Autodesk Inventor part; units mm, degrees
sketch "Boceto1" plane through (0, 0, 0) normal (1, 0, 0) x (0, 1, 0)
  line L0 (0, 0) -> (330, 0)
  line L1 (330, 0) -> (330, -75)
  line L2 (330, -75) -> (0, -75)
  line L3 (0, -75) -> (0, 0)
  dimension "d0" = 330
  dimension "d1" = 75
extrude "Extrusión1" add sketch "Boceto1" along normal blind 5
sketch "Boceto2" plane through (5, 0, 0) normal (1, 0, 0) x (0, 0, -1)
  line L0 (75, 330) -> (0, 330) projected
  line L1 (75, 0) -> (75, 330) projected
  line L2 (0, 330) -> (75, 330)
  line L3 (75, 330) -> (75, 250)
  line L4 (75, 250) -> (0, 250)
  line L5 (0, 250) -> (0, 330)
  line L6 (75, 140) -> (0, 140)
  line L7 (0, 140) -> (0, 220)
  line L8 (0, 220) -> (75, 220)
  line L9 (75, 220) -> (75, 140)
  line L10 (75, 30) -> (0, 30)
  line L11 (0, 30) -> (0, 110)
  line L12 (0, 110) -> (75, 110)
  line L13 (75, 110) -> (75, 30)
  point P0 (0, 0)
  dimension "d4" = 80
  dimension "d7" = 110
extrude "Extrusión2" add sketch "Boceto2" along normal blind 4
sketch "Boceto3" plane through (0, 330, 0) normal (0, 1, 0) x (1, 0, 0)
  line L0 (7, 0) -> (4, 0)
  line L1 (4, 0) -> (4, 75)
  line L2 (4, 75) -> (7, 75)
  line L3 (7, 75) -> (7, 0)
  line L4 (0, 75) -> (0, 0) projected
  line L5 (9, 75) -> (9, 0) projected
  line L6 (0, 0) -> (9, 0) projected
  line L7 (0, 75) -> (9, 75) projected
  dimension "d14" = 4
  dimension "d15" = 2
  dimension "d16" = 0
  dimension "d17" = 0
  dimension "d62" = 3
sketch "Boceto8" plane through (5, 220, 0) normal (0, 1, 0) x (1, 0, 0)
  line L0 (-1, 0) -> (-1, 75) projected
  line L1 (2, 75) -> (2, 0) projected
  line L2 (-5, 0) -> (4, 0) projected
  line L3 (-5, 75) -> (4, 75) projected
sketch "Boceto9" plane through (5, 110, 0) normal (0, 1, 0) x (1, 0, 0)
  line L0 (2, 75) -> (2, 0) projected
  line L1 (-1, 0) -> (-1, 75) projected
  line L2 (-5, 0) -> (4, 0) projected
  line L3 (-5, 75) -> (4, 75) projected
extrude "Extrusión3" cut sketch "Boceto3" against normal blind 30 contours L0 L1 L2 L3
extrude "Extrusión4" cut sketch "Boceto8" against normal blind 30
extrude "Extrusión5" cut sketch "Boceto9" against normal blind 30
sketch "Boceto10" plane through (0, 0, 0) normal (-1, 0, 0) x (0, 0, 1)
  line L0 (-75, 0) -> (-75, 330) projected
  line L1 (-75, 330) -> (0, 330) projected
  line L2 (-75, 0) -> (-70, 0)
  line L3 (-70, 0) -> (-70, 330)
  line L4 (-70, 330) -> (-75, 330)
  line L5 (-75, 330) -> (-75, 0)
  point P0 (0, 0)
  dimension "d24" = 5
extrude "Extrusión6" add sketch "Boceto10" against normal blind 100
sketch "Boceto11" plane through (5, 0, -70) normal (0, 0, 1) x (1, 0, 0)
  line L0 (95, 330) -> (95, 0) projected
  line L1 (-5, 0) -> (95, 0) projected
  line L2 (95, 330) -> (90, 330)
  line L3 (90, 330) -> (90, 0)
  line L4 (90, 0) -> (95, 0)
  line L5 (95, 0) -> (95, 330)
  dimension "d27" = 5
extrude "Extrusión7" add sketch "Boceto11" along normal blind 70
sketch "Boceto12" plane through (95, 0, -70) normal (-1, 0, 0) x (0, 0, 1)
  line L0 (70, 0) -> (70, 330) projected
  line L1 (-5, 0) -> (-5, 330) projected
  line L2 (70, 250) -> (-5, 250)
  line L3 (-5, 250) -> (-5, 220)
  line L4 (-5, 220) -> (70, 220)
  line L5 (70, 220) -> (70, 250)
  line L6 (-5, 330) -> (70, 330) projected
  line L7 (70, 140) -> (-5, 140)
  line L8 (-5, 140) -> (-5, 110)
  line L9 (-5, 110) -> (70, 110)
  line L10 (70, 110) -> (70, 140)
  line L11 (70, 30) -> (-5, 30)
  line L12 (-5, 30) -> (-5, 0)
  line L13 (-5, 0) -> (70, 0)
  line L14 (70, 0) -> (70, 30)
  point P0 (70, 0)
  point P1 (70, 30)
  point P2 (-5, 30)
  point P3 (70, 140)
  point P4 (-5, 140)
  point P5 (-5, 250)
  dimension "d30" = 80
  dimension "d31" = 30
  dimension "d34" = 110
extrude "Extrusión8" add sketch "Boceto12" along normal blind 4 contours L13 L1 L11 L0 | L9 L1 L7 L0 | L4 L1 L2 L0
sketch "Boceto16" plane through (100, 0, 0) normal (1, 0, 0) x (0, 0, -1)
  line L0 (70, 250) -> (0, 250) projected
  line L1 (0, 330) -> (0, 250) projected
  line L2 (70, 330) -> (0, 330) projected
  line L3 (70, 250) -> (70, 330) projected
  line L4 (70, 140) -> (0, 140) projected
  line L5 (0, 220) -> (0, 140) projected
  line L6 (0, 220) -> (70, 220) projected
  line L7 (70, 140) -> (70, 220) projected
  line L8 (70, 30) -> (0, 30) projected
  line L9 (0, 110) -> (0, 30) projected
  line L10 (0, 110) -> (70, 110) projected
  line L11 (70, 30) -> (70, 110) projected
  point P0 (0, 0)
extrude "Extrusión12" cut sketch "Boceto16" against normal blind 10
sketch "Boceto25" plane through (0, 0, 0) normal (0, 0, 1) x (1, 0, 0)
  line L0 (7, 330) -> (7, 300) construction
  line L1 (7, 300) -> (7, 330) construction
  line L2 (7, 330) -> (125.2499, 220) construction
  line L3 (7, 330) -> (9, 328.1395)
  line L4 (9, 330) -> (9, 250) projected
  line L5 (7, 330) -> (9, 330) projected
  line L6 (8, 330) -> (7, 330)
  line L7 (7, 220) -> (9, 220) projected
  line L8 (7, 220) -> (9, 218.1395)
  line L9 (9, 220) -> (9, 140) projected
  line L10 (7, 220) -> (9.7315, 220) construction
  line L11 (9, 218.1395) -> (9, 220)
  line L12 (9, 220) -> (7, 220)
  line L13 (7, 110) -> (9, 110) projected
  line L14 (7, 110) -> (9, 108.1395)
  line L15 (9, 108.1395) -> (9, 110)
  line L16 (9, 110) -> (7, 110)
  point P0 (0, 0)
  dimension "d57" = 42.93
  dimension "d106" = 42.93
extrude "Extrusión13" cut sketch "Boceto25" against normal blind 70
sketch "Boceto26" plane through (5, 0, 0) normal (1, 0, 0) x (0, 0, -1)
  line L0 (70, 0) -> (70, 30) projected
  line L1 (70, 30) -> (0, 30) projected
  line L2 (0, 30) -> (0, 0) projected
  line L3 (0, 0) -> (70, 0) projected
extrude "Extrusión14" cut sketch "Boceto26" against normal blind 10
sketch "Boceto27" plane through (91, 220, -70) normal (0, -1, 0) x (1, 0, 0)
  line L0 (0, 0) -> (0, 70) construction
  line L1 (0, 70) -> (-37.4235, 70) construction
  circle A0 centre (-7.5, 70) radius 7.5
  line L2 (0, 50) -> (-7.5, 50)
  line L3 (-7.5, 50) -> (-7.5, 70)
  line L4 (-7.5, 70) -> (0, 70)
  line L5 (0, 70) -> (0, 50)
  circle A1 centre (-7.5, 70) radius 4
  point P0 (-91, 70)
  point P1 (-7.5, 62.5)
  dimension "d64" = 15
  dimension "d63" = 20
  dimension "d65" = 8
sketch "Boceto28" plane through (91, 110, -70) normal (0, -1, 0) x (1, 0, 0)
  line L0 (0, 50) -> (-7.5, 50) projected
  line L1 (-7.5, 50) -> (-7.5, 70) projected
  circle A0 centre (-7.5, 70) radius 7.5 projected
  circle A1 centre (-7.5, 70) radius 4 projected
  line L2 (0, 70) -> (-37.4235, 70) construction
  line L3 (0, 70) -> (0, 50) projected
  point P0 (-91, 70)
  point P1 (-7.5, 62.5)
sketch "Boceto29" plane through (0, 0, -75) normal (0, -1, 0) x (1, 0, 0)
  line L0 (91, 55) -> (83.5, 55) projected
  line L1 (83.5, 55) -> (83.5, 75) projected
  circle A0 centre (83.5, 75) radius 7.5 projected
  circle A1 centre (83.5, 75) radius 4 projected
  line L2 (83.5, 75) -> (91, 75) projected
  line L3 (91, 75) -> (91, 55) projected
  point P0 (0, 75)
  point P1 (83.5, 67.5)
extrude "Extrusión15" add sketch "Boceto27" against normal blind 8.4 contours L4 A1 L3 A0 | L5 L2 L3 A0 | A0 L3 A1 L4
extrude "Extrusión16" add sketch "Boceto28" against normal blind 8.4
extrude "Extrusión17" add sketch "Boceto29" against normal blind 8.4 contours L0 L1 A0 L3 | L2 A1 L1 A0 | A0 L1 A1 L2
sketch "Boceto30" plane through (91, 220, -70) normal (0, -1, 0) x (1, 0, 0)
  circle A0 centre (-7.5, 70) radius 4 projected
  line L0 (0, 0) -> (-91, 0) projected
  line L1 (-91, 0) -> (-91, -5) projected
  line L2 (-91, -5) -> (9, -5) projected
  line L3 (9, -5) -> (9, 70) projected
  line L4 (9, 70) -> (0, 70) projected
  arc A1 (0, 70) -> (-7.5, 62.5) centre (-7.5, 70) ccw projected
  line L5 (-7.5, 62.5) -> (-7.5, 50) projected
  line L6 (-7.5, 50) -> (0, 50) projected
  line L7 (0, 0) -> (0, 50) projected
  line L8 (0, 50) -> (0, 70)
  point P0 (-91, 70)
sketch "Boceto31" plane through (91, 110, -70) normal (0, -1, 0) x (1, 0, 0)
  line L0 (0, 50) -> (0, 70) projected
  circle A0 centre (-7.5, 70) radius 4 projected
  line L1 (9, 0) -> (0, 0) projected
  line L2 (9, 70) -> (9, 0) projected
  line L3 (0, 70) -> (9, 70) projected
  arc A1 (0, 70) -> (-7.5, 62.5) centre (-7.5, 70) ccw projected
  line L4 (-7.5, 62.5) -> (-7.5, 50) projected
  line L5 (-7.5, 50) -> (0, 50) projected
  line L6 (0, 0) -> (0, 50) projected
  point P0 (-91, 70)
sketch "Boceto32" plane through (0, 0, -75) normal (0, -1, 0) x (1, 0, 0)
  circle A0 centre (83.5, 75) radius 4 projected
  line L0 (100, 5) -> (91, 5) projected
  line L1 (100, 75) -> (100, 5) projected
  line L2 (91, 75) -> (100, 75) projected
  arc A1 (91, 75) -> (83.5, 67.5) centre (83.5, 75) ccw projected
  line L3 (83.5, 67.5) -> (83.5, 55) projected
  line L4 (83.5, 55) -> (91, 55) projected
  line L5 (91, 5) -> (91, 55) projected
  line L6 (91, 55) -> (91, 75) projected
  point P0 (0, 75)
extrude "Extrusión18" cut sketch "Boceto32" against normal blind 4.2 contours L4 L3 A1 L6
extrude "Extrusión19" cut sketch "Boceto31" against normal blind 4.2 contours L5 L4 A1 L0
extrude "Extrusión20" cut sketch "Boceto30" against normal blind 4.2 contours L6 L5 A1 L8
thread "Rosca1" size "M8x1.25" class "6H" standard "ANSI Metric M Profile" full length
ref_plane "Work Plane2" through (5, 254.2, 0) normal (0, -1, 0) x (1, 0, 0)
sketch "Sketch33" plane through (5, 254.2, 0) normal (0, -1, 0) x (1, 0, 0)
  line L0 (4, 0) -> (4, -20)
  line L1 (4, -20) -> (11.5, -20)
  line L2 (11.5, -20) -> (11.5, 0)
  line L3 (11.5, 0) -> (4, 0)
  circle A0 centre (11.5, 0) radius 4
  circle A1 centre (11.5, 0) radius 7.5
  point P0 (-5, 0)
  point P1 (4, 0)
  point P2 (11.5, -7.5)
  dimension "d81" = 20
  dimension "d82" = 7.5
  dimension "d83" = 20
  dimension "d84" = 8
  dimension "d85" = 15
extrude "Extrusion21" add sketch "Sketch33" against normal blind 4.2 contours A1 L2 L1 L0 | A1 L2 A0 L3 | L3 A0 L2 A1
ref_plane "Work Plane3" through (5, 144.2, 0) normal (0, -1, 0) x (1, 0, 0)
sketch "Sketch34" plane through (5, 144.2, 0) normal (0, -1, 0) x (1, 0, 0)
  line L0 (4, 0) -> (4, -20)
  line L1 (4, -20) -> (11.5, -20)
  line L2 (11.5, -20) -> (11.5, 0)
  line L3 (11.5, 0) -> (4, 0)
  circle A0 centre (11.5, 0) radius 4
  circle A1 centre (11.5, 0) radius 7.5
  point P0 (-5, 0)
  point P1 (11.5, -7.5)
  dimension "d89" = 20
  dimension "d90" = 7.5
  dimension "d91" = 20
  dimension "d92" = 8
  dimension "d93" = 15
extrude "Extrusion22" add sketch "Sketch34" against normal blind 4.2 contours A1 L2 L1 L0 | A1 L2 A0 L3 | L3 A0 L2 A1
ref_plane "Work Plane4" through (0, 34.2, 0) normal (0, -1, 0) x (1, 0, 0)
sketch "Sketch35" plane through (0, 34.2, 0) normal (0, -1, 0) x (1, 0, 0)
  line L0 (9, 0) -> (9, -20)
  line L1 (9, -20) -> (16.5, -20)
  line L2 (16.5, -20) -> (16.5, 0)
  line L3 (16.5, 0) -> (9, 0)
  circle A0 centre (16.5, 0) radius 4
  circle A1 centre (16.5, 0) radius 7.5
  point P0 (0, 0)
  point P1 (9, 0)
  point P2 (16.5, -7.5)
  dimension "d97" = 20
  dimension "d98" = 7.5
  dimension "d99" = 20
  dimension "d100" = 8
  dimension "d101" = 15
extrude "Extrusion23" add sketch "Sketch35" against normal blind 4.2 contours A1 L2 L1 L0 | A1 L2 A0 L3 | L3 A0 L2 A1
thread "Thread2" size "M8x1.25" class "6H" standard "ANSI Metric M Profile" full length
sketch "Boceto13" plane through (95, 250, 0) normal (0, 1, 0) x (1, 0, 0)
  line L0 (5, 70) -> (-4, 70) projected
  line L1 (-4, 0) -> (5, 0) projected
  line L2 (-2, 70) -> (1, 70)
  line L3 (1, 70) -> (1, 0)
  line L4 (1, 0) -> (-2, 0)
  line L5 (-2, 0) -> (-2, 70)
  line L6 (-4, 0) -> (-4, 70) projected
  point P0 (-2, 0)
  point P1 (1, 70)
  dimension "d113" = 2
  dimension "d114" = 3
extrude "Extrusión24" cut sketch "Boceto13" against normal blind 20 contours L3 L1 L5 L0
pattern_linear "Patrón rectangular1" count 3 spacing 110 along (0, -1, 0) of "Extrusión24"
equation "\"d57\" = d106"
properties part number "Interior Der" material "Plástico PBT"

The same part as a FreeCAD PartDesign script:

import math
import FreeCAD as App
import Part
import Sketcher
Q = App.Units.Quantity


def add_polygon(sketch, points):
    """Adds a closed chain of lines whose ends are joined by coincident constraints."""
    first, n = sketch.GeometryCount, len(points)
    for a, b in zip(points, points[1:] + points[:1]):
        sketch.addGeometry(Part.LineSegment(App.Vector(*a, 0), App.Vector(*b, 0)), False)
    for i in range(n):
        sketch.addConstraint(Sketcher.Constraint("Coincident", first + i, 2, first + (i + 1) % n, 1))

doc = App.newDocument("Part")
params = doc.addObject("Spreadsheet::Sheet", "Params")
for row, (alias, value) in enumerate([
    ("sketch1_width", "330 mm"),
    ("sketch1_height", "75 mm"),
    ("pad1_length", "5 mm"),
    ("sketch2_width", "80 mm"),
    ("sketch2_height", "75 mm"),
    ("pad2_length", "4 mm"),
    ("sketch3_width", "3 mm"),
    ("sketch3_height", "75 mm"),
    ("pocket1_length", "30 mm"),
    ("sketch4_width", "3 mm"),
    ("sketch4_height", "75 mm"),
    ("pocket2_length", "30 mm"),
    ("sketch5_width", "3 mm"),
    ("sketch5_height", "75 mm"),
    ("pocket3_length", "30 mm"),
    ("sketch6_height", "5 mm"),
    ("sketch6_width", "330 mm"),
    ("pad3_length", "100 mm"),
    ("sketch7_width", "5 mm"),
    ("sketch7_height", "330 mm"),
    ("pad4_length", "70 mm"),
    ("sketch8_width", "30 mm"),
    ("sketch8_height", "75 mm"),
    ("pad5_length", "4 mm"),
    ("sketch9_width", "80 mm"),
    ("sketch9_height", "70 mm"),
    ("pocket4_length", "10 mm"),
    ("sketch10_width", "2 mm"),
    ("pocket5_length", "70 mm"),
    ("sketch11_width", "30 mm"),
    ("sketch11_height", "70 mm"),
    ("pocket6_length", "10 mm"),
    ("sketch12_diameter", "8 mm"),
    ("sketch12_radius", "7.5 mm"),
    ("sketch12_height", "20 mm"),
    ("pad6_length", "8.4 mm"),
    ("sketch13_diameter", "8 mm"),
    ("sketch13_radius", "7.5 mm"),
    ("sketch13_height", "20 mm"),
    ("pad7_length", "8.4 mm"),
    ("sketch14_diameter", "8 mm"),
    ("sketch14_radius", "7.5 mm"),
    ("sketch14_height", "20 mm"),
    ("pad8_length", "8.4 mm"),
    ("sketch15_diameter", "8 mm"),
    ("sketch15_radius", "7.5 mm"),
    ("sketch15_height", "20 mm"),
    ("pocket7_length", "4.2 mm"),
    ("sketch16_diameter", "8 mm"),
    ("sketch16_radius", "7.5 mm"),
    ("sketch16_height", "20 mm"),
    ("pocket8_length", "4.2 mm"),
    ("sketch17_diameter", "8 mm"),
    ("sketch17_radius", "7.5 mm"),
    ("sketch17_height", "20 mm"),
    ("pocket9_length", "4.2 mm"),
    ("sketch18_diameter", "8 mm"),
    ("sketch18_radius", "7.5 mm"),
    ("sketch18_height", "20 mm"),
    ("pad9_length", "4.2 mm"),
    ("sketch19_diameter", "8 mm"),
    ("sketch19_radius", "7.5 mm"),
    ("sketch19_height", "20 mm"),
    ("pad10_length", "4.2 mm"),
    ("sketch20_diameter", "8 mm"),
    ("sketch20_radius", "7.5 mm"),
    ("sketch20_height", "20 mm"),
    ("pad11_length", "4.2 mm"),
    ("sketch21_width", "3 mm"),
    ("sketch21_height", "70 mm"),
    ("pocket10_length", "20 mm"),
    ("linearpattern_pitch", "110 mm"),
], start=1):
    params.set(f"A{row}", alias)
    params.set(f"B{row}", "=" + value)
    params.setAlias(f"B{row}", alias)

body = doc.addObject("PartDesign::Body", "Body")

# Sketch on YZ plane
sketch1 = body.newObject("Sketcher::SketchObject", "Sketch")
sketch1.AttachmentSupport = (doc.getObject("YZ_Plane"), [""])
sketch1.MapMode = "FlatFace"
add_polygon(sketch1, [(330, 0), (0, 0), (0, -75), (330, -75)])  # lines 0-3
sketch1.addConstraint([
    Sketcher.Constraint("Horizontal", 0),
    Sketcher.Constraint("Vertical", 1),
    Sketcher.Constraint("Horizontal", 2),
    Sketcher.Constraint("Vertical", 3),
    Sketcher.Constraint("Coincident", 0, 2, -1, 1),
    Sketcher.Constraint("DistanceX", 0, 2, 0, 1, 330.0),
    Sketcher.Constraint("DistanceY", 1, 2, 1, 1, 75.0),
])
sketch1.setExpression("Constraints[9]", "Params.sketch1_width")
sketch1.setExpression("Constraints[10]", "Params.sketch1_height")
pad1 = body.newObject("PartDesign::Pad", "Pad")
pad1.Profile = sketch1
pad1.setExpression("Length", "Params.pad1_length")

# Sketch on YZ plane
sketch2 = body.newObject("Sketcher::SketchObject", "Sketch001")
sketch2.AttachmentSupport = (doc.getObject("YZ_Plane"), [""])
sketch2.MapMode = "FlatFace"
sketch2.AttachmentOffset = App.Placement(App.Vector(0, 0, 5), App.Rotation())
add_polygon(sketch2, [(250, -75), (330, -75), (330, 0), (250, 0)])  # lines 0-3
add_polygon(sketch2, [(30, -75), (110, -75), (110, 0), (30, 0)])  # lines 4-7
add_polygon(sketch2, [(140, -75), (220, -75), (220, 0), (140, 0)])  # lines 8-11
sketch2.addConstraint([
    Sketcher.Constraint("Horizontal", 0),
    Sketcher.Constraint("Vertical", 1),
    Sketcher.Constraint("Horizontal", 2),
    Sketcher.Constraint("Vertical", 3),
    Sketcher.Constraint("Horizontal", 4),
    Sketcher.Constraint("Vertical", 5),
    Sketcher.Constraint("Horizontal", 6),
    Sketcher.Constraint("Vertical", 7),
    Sketcher.Constraint("Horizontal", 8),
    Sketcher.Constraint("Vertical", 9),
    Sketcher.Constraint("Horizontal", 10),
    Sketcher.Constraint("Vertical", 11),
    Sketcher.Constraint("PointOnObject", 1, 2, -1),
    Sketcher.Constraint("PointOnObject", 5, 2, -1),
    Sketcher.Constraint("PointOnObject", 9, 2, -1),
    Sketcher.Constraint("Horizontal", 3, 2, 4, 2),
    Sketcher.Constraint("Horizontal", 7, 2, 8, 2),
    Sketcher.Constraint("Equal", 2, 4),
    Sketcher.Constraint("Equal", 6, 8),
    Sketcher.Constraint("DistanceX", 0, 1, 0, 2, 80.0),
    Sketcher.Constraint("DistanceX", -1, 1, 4, 2, 110.0),
    Sketcher.Constraint("DistanceX", 8, 2, 0, 2, 110.0),
    Sketcher.Constraint("DistanceX", 4, 2, 8, 2, 110.0),
    Sketcher.Constraint("DistanceY", 1, 1, 1, 2, 75.0),
])
sketch2.setExpression("Constraints[31]", "Params.sketch2_width")
sketch2.setExpression("Constraints[35]", "Params.sketch2_height")
pad2 = body.newObject("PartDesign::Pad", "Pad001")
pad2.Profile = sketch2
pad2.setExpression("Length", "Params.pad2_length")

# Sketch on XZ plane
sketch3 = body.newObject("Sketcher::SketchObject", "Sketch002")
sketch3.AttachmentSupport = (doc.getObject("XZ_Plane"), [""])
sketch3.MapMode = "FlatFace"
sketch3.AttachmentOffset = App.Placement(App.Vector(0, 0, -330), App.Rotation())
add_polygon(sketch3, [(4, 0), (7, 0), (7, -75), (4, -75)])  # lines 0-3
sketch3.addConstraint([
    Sketcher.Constraint("Horizontal", 0),
    Sketcher.Constraint("Vertical", 1),
    Sketcher.Constraint("Horizontal", 2),
    Sketcher.Constraint("Vertical", 3),
    Sketcher.Constraint("PointOnObject", 0, 2, -1),
    Sketcher.Constraint("DistanceX", 0, 1, 0, 2, 3.0),
    Sketcher.Constraint("DistanceX", -1, 1, 2, 2, 4.0),
    Sketcher.Constraint("DistanceY", 1, 2, 1, 1, 75.0),
])
sketch3.setExpression("Constraints[9]", "Params.sketch3_width")
sketch3.setExpression("Constraints[11]", "Params.sketch3_height")
pocket1 = body.newObject("PartDesign::Pocket", "Pocket")
pocket1.Profile = sketch3
pocket1.setExpression("Length", "Params.pocket1_length")
pocket1.Reversed = True

# Sketch on XZ plane
sketch4 = body.newObject("Sketcher::SketchObject", "Sketch003")
sketch4.AttachmentSupport = (doc.getObject("XZ_Plane"), [""])
sketch4.MapMode = "FlatFace"
sketch4.AttachmentOffset = App.Placement(App.Vector(0, 0, -220), App.Rotation())
add_polygon(sketch4, [(4, -75), (4, 0), (7, 0), (7, -75)])  # lines 0-3
sketch4.addConstraint([
    Sketcher.Constraint("Vertical", 0),
    Sketcher.Constraint("Horizontal", 1),
    Sketcher.Constraint("Vertical", 2),
    Sketcher.Constraint("Horizontal", 3),
    Sketcher.Constraint("PointOnObject", 0, 2, -1),
    Sketcher.Constraint("DistanceX", 1, 1, 1, 2, 3.0),
    Sketcher.Constraint("DistanceY", 0, 1, 0, 2, 75.0),
    Sketcher.Constraint("DistanceX", -1, 1, 0, 2, 4.0),
])
sketch4.setExpression("Constraints[9]", "Params.sketch4_width")
sketch4.setExpression("Constraints[10]", "Params.sketch4_height")
pocket2 = body.newObject("PartDesign::Pocket", "Pocket001")
pocket2.Profile = sketch4
pocket2.setExpression("Length", "Params.pocket2_length")
pocket2.Reversed = True

# Sketch on XZ plane
sketch5 = body.newObject("Sketcher::SketchObject", "Sketch004")
sketch5.AttachmentSupport = (doc.getObject("XZ_Plane"), [""])
sketch5.MapMode = "FlatFace"
sketch5.AttachmentOffset = App.Placement(App.Vector(0, 0, -110), App.Rotation())
add_polygon(sketch5, [(7, 0), (7, -75), (4, -75), (4, 0)])  # lines 0-3
sketch5.addConstraint([
    Sketcher.Constraint("Vertical", 0),
    Sketcher.Constraint("Horizontal", 1),
    Sketcher.Constraint("Vertical", 2),
    Sketcher.Constraint("Horizontal", 3),
    Sketcher.Constraint("PointOnObject", 2, 2, -1),
    Sketcher.Constraint("DistanceX", 1, 2, 1, 1, 3.0),
    Sketcher.Constraint("DistanceY", 0, 2, 0, 1, 75.0),
    Sketcher.Constraint("DistanceX", -1, 1, 0, 2, 7.0),
])
sketch5.setExpression("Constraints[9]", "Params.sketch5_width")
sketch5.setExpression("Constraints[10]", "Params.sketch5_height")
pocket3 = body.newObject("PartDesign::Pocket", "Pocket002")
pocket3.Profile = sketch5
pocket3.setExpression("Length", "Params.pocket3_length")
pocket3.Reversed = True

# Sketch on YZ plane
sketch6 = body.newObject("Sketcher::SketchObject", "Sketch005")
sketch6.AttachmentSupport = (doc.getObject("YZ_Plane"), [""])
sketch6.MapMode = "FlatFace"
add_polygon(sketch6, [(330, -75), (0, -75), (0, -70), (330, -70)])  # lines 0-3
sketch6.addConstraint([
    Sketcher.Constraint("Horizontal", 0),
    Sketcher.Constraint("Vertical", 1),
    Sketcher.Constraint("Horizontal", 2),
    Sketcher.Constraint("Vertical", 3),
    Sketcher.Constraint("PointOnObject", 0, 2, -2),
    Sketcher.Constraint("DistanceY", 1, 1, 1, 2, 5.0),
    Sketcher.Constraint("DistanceX", 0, 2, 0, 1, 330.0),
    Sketcher.Constraint("DistanceY", 0, 2, -1, 1, 75.0),
])
sketch6.setExpression("Constraints[9]", "Params.sketch6_height")
sketch6.setExpression("Constraints[10]", "Params.sketch6_width")
pad3 = body.newObject("PartDesign::Pad", "Pad002")
pad3.Profile = sketch6
pad3.setExpression("Length", "Params.pad3_length")

# Sketch on XY plane
sketch7 = body.newObject("Sketcher::SketchObject", "Sketch006")
sketch7.AttachmentSupport = (doc.getObject("XY_Plane"), [""])
sketch7.MapMode = "FlatFace"
sketch7.AttachmentOffset = App.Placement(App.Vector(0, 0, -70), App.Rotation())
add_polygon(sketch7, [(100, 0), (100, 330), (95, 330), (95, 0)])  # lines 0-3
sketch7.addConstraint([
    Sketcher.Constraint("Vertical", 0),
    Sketcher.Constraint("Horizontal", 1),
    Sketcher.Constraint("Vertical", 2),
    Sketcher.Constraint("Horizontal", 3),
    Sketcher.Constraint("PointOnObject", 2, 2, -1),
    Sketcher.Constraint("DistanceX", 1, 2, 1, 1, 5.0),
    Sketcher.Constraint("DistanceY", 0, 1, 0, 2, 330.0),
    Sketcher.Constraint("DistanceX", -1, 1, 0, 2, 100.0),
])
sketch7.setExpression("Constraints[9]", "Params.sketch7_width")
sketch7.setExpression("Constraints[10]", "Params.sketch7_height")
pad4 = body.newObject("PartDesign::Pad", "Pad003")
pad4.Profile = sketch7
pad4.setExpression("Length", "Params.pad4_length")

# Sketch on YZ plane
sketch8 = body.newObject("Sketcher::SketchObject", "Sketch007")
sketch8.AttachmentSupport = (doc.getObject("YZ_Plane"), [""])
sketch8.MapMode = "FlatFace"
sketch8.AttachmentOffset = App.Placement(App.Vector(0, 0, 95), App.Rotation())
add_polygon(sketch8, [(0, -75), (0, 0), (30, 0), (30, -75)])  # lines 0-3
add_polygon(sketch8, [(110, -75), (110, 0), (140, 0), (140, -75)])  # lines 4-7
add_polygon(sketch8, [(220, -75), (220, 0), (250, 0), (250, -75)])  # lines 8-11
sketch8.addConstraint([
    Sketcher.Constraint("Vertical", 0),
    Sketcher.Constraint("Horizontal", 1),
    Sketcher.Constraint("Vertical", 2),
    Sketcher.Constraint("Horizontal", 3),
    Sketcher.Constraint("Vertical", 4),
    Sketcher.Constraint("Horizontal", 5),
    Sketcher.Constraint("Vertical", 6),
    Sketcher.Constraint("Horizontal", 7),
    Sketcher.Constraint("Vertical", 8),
    Sketcher.Constraint("Horizontal", 9),
    Sketcher.Constraint("Vertical", 10),
    Sketcher.Constraint("Horizontal", 11),
    Sketcher.Constraint("Coincident", 0, 2, -1, 1),
    Sketcher.Constraint("PointOnObject", 4, 2, -1),
    Sketcher.Constraint("PointOnObject", 8, 2, -1),
    Sketcher.Constraint("Horizontal", 3, 2, 6, 2),
    Sketcher.Constraint("Horizontal", 7, 2, 10, 2),
    Sketcher.Constraint("Equal", 3, 5),
    Sketcher.Constraint("Equal", 7, 9),
    Sketcher.Constraint("DistanceX", 1, 1, 1, 2, 30.0),
    Sketcher.Constraint("DistanceX", -1, 1, 4, 2, 110.0),
    Sketcher.Constraint("DistanceX", 5, 2, 8, 2, 80.0),
    Sketcher.Constraint("DistanceY", 0, 1, 0, 2, 75.0),
])
sketch8.setExpression("Constraints[31]", "Params.sketch8_width")
sketch8.setExpression("Constraints[34]", "Params.sketch8_height")
pad5 = body.newObject("PartDesign::Pad", "Pad004")
pad5.Profile = sketch8
pad5.setExpression("Length", "Params.pad5_length")
pad5.Reversed = True

# Sketch on YZ plane
sketch9 = body.newObject("Sketcher::SketchObject", "Sketch008")
sketch9.AttachmentSupport = (doc.getObject("YZ_Plane"), [""])
sketch9.MapMode = "FlatFace"
sketch9.AttachmentOffset = App.Placement(App.Vector(0, 0, 100), App.Rotation())
add_polygon(sketch9, [(250, 0), (250, -70), (330, -70), (330, 0)])  # lines 0-3
add_polygon(sketch9, [(140, 0), (140, -70), (220, -70), (220, 0)])  # lines 4-7
add_polygon(sketch9, [(30, 0), (30, -70), (110, -70), (110, 0)])  # lines 8-11
sketch9.addConstraint([
    Sketcher.Constraint("Vertical", 0),
    Sketcher.Constraint("Horizontal", 1),
    Sketcher.Constraint("Vertical", 2),
    Sketcher.Constraint("Horizontal", 3),
    Sketcher.Constraint("Vertical", 4),
    Sketcher.Constraint("Horizontal", 5),
    Sketcher.Constraint("Vertical", 6),
    Sketcher.Constraint("Horizontal", 7),
    Sketcher.Constraint("Vertical", 8),
    Sketcher.Constraint("Horizontal", 9),
    Sketcher.Constraint("Vertical", 10),
    Sketcher.Constraint("Horizontal", 11),
    Sketcher.Constraint("PointOnObject", 2, 2, -1),
    Sketcher.Constraint("PointOnObject", 6, 2, -1),
    Sketcher.Constraint("PointOnObject", 10, 2, -1),
    Sketcher.Constraint("Horizontal", 1, 2, 4, 2),
    Sketcher.Constraint("Horizontal", 5, 2, 8, 2),
    Sketcher.Constraint("Equal", 3, 5),
    Sketcher.Constraint("Equal", 7, 9),
    Sketcher.Constraint("DistanceX", 1, 1, 1, 2, 80.0),
    Sketcher.Constraint("DistanceY", 0, 2, 0, 1, 70.0),
    Sketcher.Constraint("DistanceX", -1, 1, 0, 2, 250.0),
    Sketcher.Constraint("DistanceX", -1, 1, 4, 2, 140.0),
    Sketcher.Constraint("DistanceX", -1, 1, 8, 2, 30.0),
])
sketch9.setExpression("Constraints[31]", "Params.sketch9_width")
sketch9.setExpression("Constraints[32]", "Params.sketch9_height")
pocket4 = body.newObject("PartDesign::Pocket", "Pocket003")
pocket4.Profile = sketch9
pocket4.setExpression("Length", "Params.pocket4_length")

# Sketch on XY plane
sketch10 = body.newObject("Sketcher::SketchObject", "Sketch009")
sketch10.AttachmentSupport = (doc.getObject("XY_Plane"), [""])
sketch10.MapMode = "FlatFace"
add_polygon(sketch10, [(9, 330), (7, 330), (9, 328.1)])  # lines 0-2
add_polygon(sketch10, [(9, 220), (7, 220), (9, 218.1)])  # lines 3-5
add_polygon(sketch10, [(9, 110), (7, 110), (9, 108.1)])  # lines 6-8
sketch10.addConstraint([
    Sketcher.Constraint("Horizontal", 0),
    Sketcher.Constraint("Vertical", 2),
    Sketcher.Constraint("Horizontal", 3),
    Sketcher.Constraint("Vertical", 5),
    Sketcher.Constraint("Horizontal", 6),
    Sketcher.Constraint("Vertical", 8),
    Sketcher.Constraint("Parallel", 1, 4),
    Sketcher.Constraint("Parallel", 4, 7),
    Sketcher.Constraint("Vertical", 0, 2, 3, 2),
    Sketcher.Constraint("Vertical", 2, 2, 4, 2),
    Sketcher.Constraint("Vertical", 3, 2, 6, 2),
    Sketcher.Constraint("Vertical", 5, 2, 7, 2),
    Sketcher.Constraint("Angle", 1, Q("-42.9305 deg")),
    Sketcher.Constraint("DistanceX", 0, 2, 0, 1, 2.0),
    Sketcher.Constraint("DistanceX", -1, 1, 0, 2, 7.0),
    Sketcher.Constraint("DistanceY", -1, 1, 0, 2, 330.0),
    Sketcher.Constraint("DistanceY", -1, 1, 3, 2, 220.0),
    Sketcher.Constraint("DistanceY", -1, 1, 6, 2, 110.0),
])
sketch10.setExpression("Constraints[22]", "Params.sketch10_width")
pocket5 = body.newObject("PartDesign::Pocket", "Pocket004")
pocket5.Profile = sketch10
pocket5.setExpression("Length", "Params.pocket5_length")

# Sketch on YZ plane
sketch11 = body.newObject("Sketcher::SketchObject", "Sketch010")
sketch11.AttachmentSupport = (doc.getObject("YZ_Plane"), [""])
sketch11.MapMode = "FlatFace"
sketch11.AttachmentOffset = App.Placement(App.Vector(0, 0, 5), App.Rotation())
add_polygon(sketch11, [(0, 0), (0, -70), (30, -70), (30, 0)])  # lines 0-3
sketch11.addConstraint([
    Sketcher.Constraint("Vertical", 0),
    Sketcher.Constraint("Horizontal", 1),
    Sketcher.Constraint("Vertical", 2),
    Sketcher.Constraint("Horizontal", 3),
    Sketcher.Constraint("Coincident", 3, 2, -1, 1),
    Sketcher.Constraint("DistanceX", 1, 1, 1, 2, 30.0),
    Sketcher.Constraint("DistanceY", 0, 2, 0, 1, 70.0),
])
sketch11.setExpression("Constraints[9]", "Params.sketch11_width")
sketch11.setExpression("Constraints[10]", "Params.sketch11_height")
pocket6 = body.newObject("PartDesign::Pocket", "Pocket005")
pocket6.Profile = sketch11
pocket6.setExpression("Length", "Params.pocket6_length")

# Sketch on XZ plane
sketch12 = body.newObject("Sketcher::SketchObject", "Sketch011")
sketch12.AttachmentSupport = (doc.getObject("XZ_Plane"), [""])
sketch12.MapMode = "FlatFace"
sketch12.AttachmentOffset = App.Placement(App.Vector(0, 0, -220), App.Rotation())
sketch12.addGeometry([
    Part.ArcOfCircle(Part.Circle(App.Vector(83.5, 0, 0), App.Vector(0, 0, 1), 7.5), math.radians(0), math.radians(270)),  # 0
    Part.LineSegment(App.Vector(83.5, -7.5, 0), App.Vector(83.5, -20, 0)),  # 1
    Part.LineSegment(App.Vector(83.5, -20, 0), App.Vector(91, -20, 0)),  # 2
    Part.LineSegment(App.Vector(91, -20, 0), App.Vector(91, 0, 0)),  # 3
    Part.Circle(App.Vector(83.5, 0, 0), App.Vector(0, 0, 1), 4),  # 4
], False)
sketch12.addConstraint([
    Sketcher.Constraint("Coincident", 0, 2, 1, 1),
    Sketcher.Constraint("Coincident", 1, 2, 2, 1),
    Sketcher.Constraint("Coincident", 2, 2, 3, 1),
    Sketcher.Constraint("Tangent", 3, 2, 0, 1),
    Sketcher.Constraint("Vertical", 1),
    Sketcher.Constraint("Horizontal", 2),
    Sketcher.Constraint("Vertical", 3),
    Sketcher.Constraint("Coincident", 4, 3, 0, 3),
    Sketcher.Constraint("PointOnObject", 0, 3, -1),
    Sketcher.Constraint("Vertical", 4, 3, 0, 2),
    Sketcher.Constraint("Diameter", 4, 8.0),
    Sketcher.Constraint("Radius", 0, 7.5),
    Sketcher.Constraint("DistanceY", 3, 1, 3, 2, 20.0),
    Sketcher.Constraint("DistanceX", -1, 1, 2, 2, 91.0),
])
sketch12.setExpression("Constraints[10]", "Params.sketch12_diameter")
sketch12.setExpression("Constraints[11]", "Params.sketch12_radius")
sketch12.setExpression("Constraints[12]", "Params.sketch12_height")
pad6 = body.newObject("PartDesign::Pad", "Pad005")
pad6.Profile = sketch12
pad6.setExpression("Length", "Params.pad6_length")
pad6.Reversed = True

# Sketch on XZ plane
sketch13 = body.newObject("Sketcher::SketchObject", "Sketch012")
sketch13.AttachmentSupport = (doc.getObject("XZ_Plane"), [""])
sketch13.MapMode = "FlatFace"
sketch13.AttachmentOffset = App.Placement(App.Vector(0, 0, -110), App.Rotation())
sketch13.addGeometry([
    Part.LineSegment(App.Vector(83.5, -20, 0), App.Vector(91, -20, 0)),  # 0
    Part.LineSegment(App.Vector(91, -20, 0), App.Vector(91, 0, 0)),  # 1
    Part.ArcOfCircle(Part.Circle(App.Vector(83.5, 0, 0), App.Vector(0, 0, 1), 7.5), math.radians(0), math.radians(270)),  # 2
    Part.LineSegment(App.Vector(83.5, -7.5, 0), App.Vector(83.5, -20, 0)),  # 3
    Part.Circle(App.Vector(83.5, 0, 0), App.Vector(0, 0, 1), 4),  # 4
], False)
sketch13.addConstraint([
    Sketcher.Constraint("Coincident", 0, 2, 1, 1),
    Sketcher.Constraint("Tangent", 1, 2, 2, 1),
    Sketcher.Constraint("Coincident", 2, 2, 3, 1),
    Sketcher.Constraint("Coincident", 3, 2, 0, 1),
    Sketcher.Constraint("Horizontal", 0),
    Sketcher.Constraint("Vertical", 1),
    Sketcher.Constraint("Vertical", 3),
    Sketcher.Constraint("Coincident", 4, 3, 2, 3),
    Sketcher.Constraint("PointOnObject", 2, 3, -1),
    Sketcher.Constraint("Vertical", 4, 3, 2, 2),
    Sketcher.Constraint("Diameter", 4, 8.0),
    Sketcher.Constraint("Radius", 2, 7.5),
    Sketcher.Constraint("DistanceY", 1, 1, 1, 2, 20.0),
    Sketcher.Constraint("DistanceX", -1, 1, 0, 2, 91.0),
])
sketch13.setExpression("Constraints[10]", "Params.sketch13_diameter")
sketch13.setExpression("Constraints[11]", "Params.sketch13_radius")
sketch13.setExpression("Constraints[12]", "Params.sketch13_height")
pad7 = body.newObject("PartDesign::Pad", "Pad006")
pad7.Profile = sketch13
pad7.setExpression("Length", "Params.pad7_length")
pad7.Reversed = True

# Sketch on XZ plane
sketch14 = body.newObject("Sketcher::SketchObject", "Sketch013")
sketch14.AttachmentSupport = (doc.getObject("XZ_Plane"), [""])
sketch14.MapMode = "FlatFace"
sketch14.addGeometry([
    Part.LineSegment(App.Vector(83.5, -20, 0), App.Vector(91, -20, 0)),  # 0
    Part.LineSegment(App.Vector(91, -20, 0), App.Vector(91, 0, 0)),  # 1
    Part.ArcOfCircle(Part.Circle(App.Vector(83.5, 0, 0), App.Vector(0, 0, 1), 7.5), math.radians(0), math.radians(270)),  # 2
    Part.LineSegment(App.Vector(83.5, -7.5, 0), App.Vector(83.5, -20, 0)),  # 3
    Part.Circle(App.Vector(83.5, 0, 0), App.Vector(0, 0, 1), 4),  # 4
], False)
sketch14.addConstraint([
    Sketcher.Constraint("Coincident", 0, 2, 1, 1),
    Sketcher.Constraint("Tangent", 1, 2, 2, 1),
    Sketcher.Constraint("Coincident", 2, 2, 3, 1),
    Sketcher.Constraint("Coincident", 3, 2, 0, 1),
    Sketcher.Constraint("Horizontal", 0),
    Sketcher.Constraint("Vertical", 1),
    Sketcher.Constraint("Vertical", 3),
    Sketcher.Constraint("Coincident", 4, 3, 2, 3),
    Sketcher.Constraint("PointOnObject", 2, 3, -1),
    Sketcher.Constraint("Vertical", 4, 3, 2, 2),
    Sketcher.Constraint("Diameter", 4, 8.0),
    Sketcher.Constraint("Radius", 2, 7.5),
    Sketcher.Constraint("DistanceY", 1, 1, 1, 2, 20.0),
    Sketcher.Constraint("DistanceX", -1, 1, 0, 2, 91.0),
])
sketch14.setExpression("Constraints[10]", "Params.sketch14_diameter")
sketch14.setExpression("Constraints[11]", "Params.sketch14_radius")
sketch14.setExpression("Constraints[12]", "Params.sketch14_height")
pad8 = body.newObject("PartDesign::Pad", "Pad007")
pad8.Profile = sketch14
pad8.setExpression("Length", "Params.pad8_length")
pad8.Reversed = True

# Sketch on XZ plane
sketch15 = body.newObject("Sketcher::SketchObject", "Sketch014")
sketch15.AttachmentSupport = (doc.getObject("XZ_Plane"), [""])
sketch15.MapMode = "FlatFace"
sketch15.addGeometry([
    Part.LineSegment(App.Vector(83.5, -20, 0), App.Vector(91, -20, 0)),  # 0
    Part.LineSegment(App.Vector(91, -20, 0), App.Vector(91, 0, 0)),  # 1
    Part.ArcOfCircle(Part.Circle(App.Vector(83.5, 0, 0), App.Vector(0, 0, 1), 7.5), math.radians(0), math.radians(270)),  # 2
    Part.LineSegment(App.Vector(83.5, -7.5, 0), App.Vector(83.5, -20, 0)),  # 3
    Part.Circle(App.Vector(83.5, 0, 0), App.Vector(0, 0, 1), 4),  # 4
], False)
sketch15.addConstraint([
    Sketcher.Constraint("Coincident", 0, 2, 1, 1),
    Sketcher.Constraint("Tangent", 1, 2, 2, 1),
    Sketcher.Constraint("Coincident", 2, 2, 3, 1),
    Sketcher.Constraint("Coincident", 3, 2, 0, 1),
    Sketcher.Constraint("Horizontal", 0),
    Sketcher.Constraint("Vertical", 1),
    Sketcher.Constraint("Vertical", 3),
    Sketcher.Constraint("Coincident", 4, 3, 2, 3),
    Sketcher.Constraint("PointOnObject", 2, 3, -1),
    Sketcher.Constraint("Vertical", 4, 3, 2, 2),
    Sketcher.Constraint("Diameter", 4, 8.0),
    Sketcher.Constraint("Radius", 2, 7.5),
    Sketcher.Constraint("DistanceY", 1, 1, 1, 2, 20.0),
    Sketcher.Constraint("DistanceX", -1, 1, 0, 2, 91.0),
])
sketch15.setExpression("Constraints[10]", "Params.sketch15_diameter")
sketch15.setExpression("Constraints[11]", "Params.sketch15_radius")
sketch15.setExpression("Constraints[12]", "Params.sketch15_height")
pocket7 = body.newObject("PartDesign::Pocket", "Pocket006")
pocket7.Profile = sketch15
pocket7.setExpression("Length", "Params.pocket7_length")

# Sketch on XZ plane
sketch16 = body.newObject("Sketcher::SketchObject", "Sketch015")
sketch16.AttachmentSupport = (doc.getObject("XZ_Plane"), [""])
sketch16.MapMode = "FlatFace"
sketch16.AttachmentOffset = App.Placement(App.Vector(0, 0, -110), App.Rotation())
sketch16.addGeometry([
    Part.LineSegment(App.Vector(83.5, -20, 0), App.Vector(91, -20, 0)),  # 0
    Part.LineSegment(App.Vector(91, -20, 0), App.Vector(91, 0, 0)),  # 1
    Part.ArcOfCircle(Part.Circle(App.Vector(83.5, 0, 0), App.Vector(0, 0, 1), 7.5), math.radians(0), math.radians(270)),  # 2
    Part.LineSegment(App.Vector(83.5, -7.5, 0), App.Vector(83.5, -20, 0)),  # 3
    Part.Circle(App.Vector(83.5, 0, 0), App.Vector(0, 0, 1), 4),  # 4
], False)
sketch16.addConstraint([
    Sketcher.Constraint("Coincident", 0, 2, 1, 1),
    Sketcher.Constraint("Tangent", 1, 2, 2, 1),
    Sketcher.Constraint("Coincident", 2, 2, 3, 1),
    Sketcher.Constraint("Coincident", 3, 2, 0, 1),
    Sketcher.Constraint("Horizontal", 0),
    Sketcher.Constraint("Vertical", 1),
    Sketcher.Constraint("Vertical", 3),
    Sketcher.Constraint("Coincident", 4, 3, 2, 3),
    Sketcher.Constraint("PointOnObject", 2, 3, -1),
    Sketcher.Constraint("Vertical", 4, 3, 2, 2),
    Sketcher.Constraint("Diameter", 4, 8.0),
    Sketcher.Constraint("Radius", 2, 7.5),
    Sketcher.Constraint("DistanceY", 1, 1, 1, 2, 20.0),
    Sketcher.Constraint("DistanceX", -1, 1, 0, 2, 91.0),
])
sketch16.setExpression("Constraints[10]", "Params.sketch16_diameter")
sketch16.setExpression("Constraints[11]", "Params.sketch16_radius")
sketch16.setExpression("Constraints[12]", "Params.sketch16_height")
pocket8 = body.newObject("PartDesign::Pocket", "Pocket007")
pocket8.Profile = sketch16
pocket8.setExpression("Length", "Params.pocket8_length")

# Sketch on XZ plane
sketch17 = body.newObject("Sketcher::SketchObject", "Sketch016")
sketch17.AttachmentSupport = (doc.getObject("XZ_Plane"), [""])
sketch17.MapMode = "FlatFace"
sketch17.AttachmentOffset = App.Placement(App.Vector(0, 0, -220), App.Rotation())
sketch17.addGeometry([
    Part.LineSegment(App.Vector(83.5, -20, 0), App.Vector(91, -20, 0)),  # 0
    Part.LineSegment(App.Vector(91, -20, 0), App.Vector(91, 0, 0)),  # 1
    Part.ArcOfCircle(Part.Circle(App.Vector(83.5, 0, 0), App.Vector(0, 0, 1), 7.5), math.radians(0), math.radians(270)),  # 2
    Part.LineSegment(App.Vector(83.5, -7.5, 0), App.Vector(83.5, -20, 0)),  # 3
    Part.Circle(App.Vector(83.5, 0, 0), App.Vector(0, 0, 1), 4),  # 4
], False)
sketch17.addConstraint([
    Sketcher.Constraint("Coincident", 0, 2, 1, 1),
    Sketcher.Constraint("Tangent", 1, 2, 2, 1),
    Sketcher.Constraint("Coincident", 2, 2, 3, 1),
    Sketcher.Constraint("Coincident", 3, 2, 0, 1),
    Sketcher.Constraint("Horizontal", 0),
    Sketcher.Constraint("Vertical", 1),
    Sketcher.Constraint("Vertical", 3),
    Sketcher.Constraint("Coincident", 4, 3, 2, 3),
    Sketcher.Constraint("PointOnObject", 2, 3, -1),
    Sketcher.Constraint("Vertical", 4, 3, 2, 2),
    Sketcher.Constraint("Diameter", 4, 8.0),
    Sketcher.Constraint("Radius", 2, 7.5),
    Sketcher.Constraint("DistanceY", 1, 1, 1, 2, 20.0),
    Sketcher.Constraint("DistanceX", -1, 1, 0, 2, 91.0),
])
sketch17.setExpression("Constraints[10]", "Params.sketch17_diameter")
sketch17.setExpression("Constraints[11]", "Params.sketch17_radius")
sketch17.setExpression("Constraints[12]", "Params.sketch17_height")
pocket9 = body.newObject("PartDesign::Pocket", "Pocket008")
pocket9.Profile = sketch17
pocket9.setExpression("Length", "Params.pocket9_length")

# Sketch on XZ plane
sketch18 = body.newObject("Sketcher::SketchObject", "Sketch017")
sketch18.AttachmentSupport = (doc.getObject("XZ_Plane"), [""])
sketch18.MapMode = "FlatFace"
sketch18.AttachmentOffset = App.Placement(App.Vector(0, 0, -254.2), App.Rotation())
sketch18.addGeometry([
    Part.LineSegment(App.Vector(16.5, -20, 0), App.Vector(16.5, -7.5, 0)),  # 0
    Part.ArcOfCircle(Part.Circle(App.Vector(16.5, 0, 0), App.Vector(0, 0, 1), 7.5), math.radians(-90), math.radians(180)),  # 1
    Part.LineSegment(App.Vector(9, 0, 0), App.Vector(9, -20, 0)),  # 2
    Part.LineSegment(App.Vector(9, -20, 0), App.Vector(16.5, -20, 0)),  # 3
    Part.Circle(App.Vector(16.5, 0, 0), App.Vector(0, 0, 1), 4),  # 4
], False)
sketch18.addConstraint([
    Sketcher.Constraint("Coincident", 0, 2, 1, 1),
    Sketcher.Constraint("Tangent", 1, 2, 2, 1),
    Sketcher.Constraint("Coincident", 2, 2, 3, 1),
    Sketcher.Constraint("Coincident", 3, 2, 0, 1),
    Sketcher.Constraint("Vertical", 0),
    Sketcher.Constraint("Vertical", 2),
    Sketcher.Constraint("Horizontal", 3),
    Sketcher.Constraint("Coincident", 4, 3, 1, 3),
    Sketcher.Constraint("PointOnObject", 1, 3, -1),
    Sketcher.Constraint("Vertical", 4, 3, 0, 2),
    Sketcher.Constraint("Diameter", 4, 8.0),
    Sketcher.Constraint("Radius", 1, 7.5),
    Sketcher.Constraint("DistanceY", 2, 2, 2, 1, 20.0),
    Sketcher.Constraint("DistanceX", -1, 1, 1, 2, 9.0),
])
sketch18.setExpression("Constraints[10]", "Params.sketch18_diameter")
sketch18.setExpression("Constraints[11]", "Params.sketch18_radius")
sketch18.setExpression("Constraints[12]", "Params.sketch18_height")
pad9 = body.newObject("PartDesign::Pad", "Pad008")
pad9.Profile = sketch18
pad9.setExpression("Length", "Params.pad9_length")
pad9.Reversed = True

# Sketch on XZ plane
sketch19 = body.newObject("Sketcher::SketchObject", "Sketch018")
sketch19.AttachmentSupport = (doc.getObject("XZ_Plane"), [""])
sketch19.MapMode = "FlatFace"
sketch19.AttachmentOffset = App.Placement(App.Vector(0, 0, -144.2), App.Rotation())
sketch19.addGeometry([
    Part.LineSegment(App.Vector(16.5, -20, 0), App.Vector(16.5, -7.5, 0)),  # 0
    Part.ArcOfCircle(Part.Circle(App.Vector(16.5, 0, 0), App.Vector(0, 0, 1), 7.5), math.radians(-90), math.radians(180)),  # 1
    Part.LineSegment(App.Vector(9, 0, 0), App.Vector(9, -20, 0)),  # 2
    Part.LineSegment(App.Vector(9, -20, 0), App.Vector(16.5, -20, 0)),  # 3
    Part.Circle(App.Vector(16.5, 0, 0), App.Vector(0, 0, 1), 4),  # 4
], False)
sketch19.addConstraint([
    Sketcher.Constraint("Coincident", 0, 2, 1, 1),
    Sketcher.Constraint("Tangent", 1, 2, 2, 1),
    Sketcher.Constraint("Coincident", 2, 2, 3, 1),
    Sketcher.Constraint("Coincident", 3, 2, 0, 1),
    Sketcher.Constraint("Vertical", 0),
    Sketcher.Constraint("Vertical", 2),
    Sketcher.Constraint("Horizontal", 3),
    Sketcher.Constraint("Coincident", 4, 3, 1, 3),
    Sketcher.Constraint("PointOnObject", 1, 3, -1),
    Sketcher.Constraint("Vertical", 4, 3, 0, 2),
    Sketcher.Constraint("Diameter", 4, 8.0),
    Sketcher.Constraint("Radius", 1, 7.5),
    Sketcher.Constraint("DistanceY", 2, 2, 2, 1, 20.0),
    Sketcher.Constraint("DistanceX", -1, 1, 1, 2, 9.0),
])
sketch19.setExpression("Constraints[10]", "Params.sketch19_diameter")
sketch19.setExpression("Constraints[11]", "Params.sketch19_radius")
sketch19.setExpression("Constraints[12]", "Params.sketch19_height")
pad10 = body.newObject("PartDesign::Pad", "Pad009")
pad10.Profile = sketch19
pad10.setExpression("Length", "Params.pad10_length")
pad10.Reversed = True

# Sketch on XZ plane
sketch20 = body.newObject("Sketcher::SketchObject", "Sketch019")
sketch20.AttachmentSupport = (doc.getObject("XZ_Plane"), [""])
sketch20.MapMode = "FlatFace"
sketch20.AttachmentOffset = App.Placement(App.Vector(0, 0, -34.2), App.Rotation())
sketch20.addGeometry([
    Part.LineSegment(App.Vector(16.5, -20, 0), App.Vector(16.5, -7.5, 0)),  # 0
    Part.ArcOfCircle(Part.Circle(App.Vector(16.5, 0, 0), App.Vector(0, 0, 1), 7.5), math.radians(-90), math.radians(180)),  # 1
    Part.LineSegment(App.Vector(9, 0, 0), App.Vector(9, -20, 0)),  # 2
    Part.LineSegment(App.Vector(9, -20, 0), App.Vector(16.5, -20, 0)),  # 3
    Part.Circle(App.Vector(16.5, 0, 0), App.Vector(0, 0, 1), 4),  # 4
], False)
sketch20.addConstraint([
    Sketcher.Constraint("Coincident", 0, 2, 1, 1),
    Sketcher.Constraint("Tangent", 1, 2, 2, 1),
    Sketcher.Constraint("Coincident", 2, 2, 3, 1),
    Sketcher.Constraint("Coincident", 3, 2, 0, 1),
    Sketcher.Constraint("Vertical", 0),
    Sketcher.Constraint("Vertical", 2),
    Sketcher.Constraint("Horizontal", 3),
    Sketcher.Constraint("Coincident", 4, 3, 1, 3),
    Sketcher.Constraint("PointOnObject", 1, 3, -1),
    Sketcher.Constraint("Vertical", 4, 3, 0, 2),
    Sketcher.Constraint("Diameter", 4, 8.0),
    Sketcher.Constraint("Radius", 1, 7.5),
    Sketcher.Constraint("DistanceY", 2, 2, 2, 1, 20.0),
    Sketcher.Constraint("DistanceX", -1, 1, 1, 2, 9.0),
])
sketch20.setExpression("Constraints[10]", "Params.sketch20_diameter")
sketch20.setExpression("Constraints[11]", "Params.sketch20_radius")
sketch20.setExpression("Constraints[12]", "Params.sketch20_height")
pad11 = body.newObject("PartDesign::Pad", "Pad010")
pad11.Profile = sketch20
pad11.setExpression("Length", "Params.pad11_length")
pad11.Reversed = True

# Sketch on XZ plane
sketch21 = body.newObject("Sketcher::SketchObject", "Sketch020")
sketch21.AttachmentSupport = (doc.getObject("XZ_Plane"), [""])
sketch21.MapMode = "FlatFace"
sketch21.AttachmentOffset = App.Placement(App.Vector(0, 0, -250), App.Rotation())
add_polygon(sketch21, [(96, 0), (96, -70), (93, -70), (93, 0)])  # lines 0-3
sketch21.addConstraint([
    Sketcher.Constraint("Vertical", 0),
    Sketcher.Constraint("Horizontal", 1),
    Sketcher.Constraint("Vertical", 2),
    Sketcher.Constraint("Horizontal", 3),
    Sketcher.Constraint("PointOnObject", 2, 2, -1),
    Sketcher.Constraint("DistanceX", 1, 2, 1, 1, 3.0),
    Sketcher.Constraint("DistanceY", 0, 2, 0, 1, 70.0),
    Sketcher.Constraint("DistanceX", -1, 1, 0, 2, 96.0),
])
sketch21.setExpression("Constraints[9]", "Params.sketch21_width")
sketch21.setExpression("Constraints[10]", "Params.sketch21_height")
pocket10 = body.newObject("PartDesign::Pocket", "Pocket009")
pocket10.Profile = sketch21
pocket10.setExpression("Length", "Params.pocket10_length")
pocket10.Reversed = True
doc.recompute()

linearpattern = body.newObject("PartDesign::LinearPattern", "LinearPattern")
linearpattern.Originals = [pocket10]
linearpattern.Direction = (doc.getObject("Y_Axis"), [""])
linearpattern.Mode = "offset"
linearpattern.setExpression("Offset", "Params.linearpattern_pitch")
linearpattern.Occurrences = 3
linearpattern.Reversed = True
body.Tip = linearpattern

doc.recompute()
